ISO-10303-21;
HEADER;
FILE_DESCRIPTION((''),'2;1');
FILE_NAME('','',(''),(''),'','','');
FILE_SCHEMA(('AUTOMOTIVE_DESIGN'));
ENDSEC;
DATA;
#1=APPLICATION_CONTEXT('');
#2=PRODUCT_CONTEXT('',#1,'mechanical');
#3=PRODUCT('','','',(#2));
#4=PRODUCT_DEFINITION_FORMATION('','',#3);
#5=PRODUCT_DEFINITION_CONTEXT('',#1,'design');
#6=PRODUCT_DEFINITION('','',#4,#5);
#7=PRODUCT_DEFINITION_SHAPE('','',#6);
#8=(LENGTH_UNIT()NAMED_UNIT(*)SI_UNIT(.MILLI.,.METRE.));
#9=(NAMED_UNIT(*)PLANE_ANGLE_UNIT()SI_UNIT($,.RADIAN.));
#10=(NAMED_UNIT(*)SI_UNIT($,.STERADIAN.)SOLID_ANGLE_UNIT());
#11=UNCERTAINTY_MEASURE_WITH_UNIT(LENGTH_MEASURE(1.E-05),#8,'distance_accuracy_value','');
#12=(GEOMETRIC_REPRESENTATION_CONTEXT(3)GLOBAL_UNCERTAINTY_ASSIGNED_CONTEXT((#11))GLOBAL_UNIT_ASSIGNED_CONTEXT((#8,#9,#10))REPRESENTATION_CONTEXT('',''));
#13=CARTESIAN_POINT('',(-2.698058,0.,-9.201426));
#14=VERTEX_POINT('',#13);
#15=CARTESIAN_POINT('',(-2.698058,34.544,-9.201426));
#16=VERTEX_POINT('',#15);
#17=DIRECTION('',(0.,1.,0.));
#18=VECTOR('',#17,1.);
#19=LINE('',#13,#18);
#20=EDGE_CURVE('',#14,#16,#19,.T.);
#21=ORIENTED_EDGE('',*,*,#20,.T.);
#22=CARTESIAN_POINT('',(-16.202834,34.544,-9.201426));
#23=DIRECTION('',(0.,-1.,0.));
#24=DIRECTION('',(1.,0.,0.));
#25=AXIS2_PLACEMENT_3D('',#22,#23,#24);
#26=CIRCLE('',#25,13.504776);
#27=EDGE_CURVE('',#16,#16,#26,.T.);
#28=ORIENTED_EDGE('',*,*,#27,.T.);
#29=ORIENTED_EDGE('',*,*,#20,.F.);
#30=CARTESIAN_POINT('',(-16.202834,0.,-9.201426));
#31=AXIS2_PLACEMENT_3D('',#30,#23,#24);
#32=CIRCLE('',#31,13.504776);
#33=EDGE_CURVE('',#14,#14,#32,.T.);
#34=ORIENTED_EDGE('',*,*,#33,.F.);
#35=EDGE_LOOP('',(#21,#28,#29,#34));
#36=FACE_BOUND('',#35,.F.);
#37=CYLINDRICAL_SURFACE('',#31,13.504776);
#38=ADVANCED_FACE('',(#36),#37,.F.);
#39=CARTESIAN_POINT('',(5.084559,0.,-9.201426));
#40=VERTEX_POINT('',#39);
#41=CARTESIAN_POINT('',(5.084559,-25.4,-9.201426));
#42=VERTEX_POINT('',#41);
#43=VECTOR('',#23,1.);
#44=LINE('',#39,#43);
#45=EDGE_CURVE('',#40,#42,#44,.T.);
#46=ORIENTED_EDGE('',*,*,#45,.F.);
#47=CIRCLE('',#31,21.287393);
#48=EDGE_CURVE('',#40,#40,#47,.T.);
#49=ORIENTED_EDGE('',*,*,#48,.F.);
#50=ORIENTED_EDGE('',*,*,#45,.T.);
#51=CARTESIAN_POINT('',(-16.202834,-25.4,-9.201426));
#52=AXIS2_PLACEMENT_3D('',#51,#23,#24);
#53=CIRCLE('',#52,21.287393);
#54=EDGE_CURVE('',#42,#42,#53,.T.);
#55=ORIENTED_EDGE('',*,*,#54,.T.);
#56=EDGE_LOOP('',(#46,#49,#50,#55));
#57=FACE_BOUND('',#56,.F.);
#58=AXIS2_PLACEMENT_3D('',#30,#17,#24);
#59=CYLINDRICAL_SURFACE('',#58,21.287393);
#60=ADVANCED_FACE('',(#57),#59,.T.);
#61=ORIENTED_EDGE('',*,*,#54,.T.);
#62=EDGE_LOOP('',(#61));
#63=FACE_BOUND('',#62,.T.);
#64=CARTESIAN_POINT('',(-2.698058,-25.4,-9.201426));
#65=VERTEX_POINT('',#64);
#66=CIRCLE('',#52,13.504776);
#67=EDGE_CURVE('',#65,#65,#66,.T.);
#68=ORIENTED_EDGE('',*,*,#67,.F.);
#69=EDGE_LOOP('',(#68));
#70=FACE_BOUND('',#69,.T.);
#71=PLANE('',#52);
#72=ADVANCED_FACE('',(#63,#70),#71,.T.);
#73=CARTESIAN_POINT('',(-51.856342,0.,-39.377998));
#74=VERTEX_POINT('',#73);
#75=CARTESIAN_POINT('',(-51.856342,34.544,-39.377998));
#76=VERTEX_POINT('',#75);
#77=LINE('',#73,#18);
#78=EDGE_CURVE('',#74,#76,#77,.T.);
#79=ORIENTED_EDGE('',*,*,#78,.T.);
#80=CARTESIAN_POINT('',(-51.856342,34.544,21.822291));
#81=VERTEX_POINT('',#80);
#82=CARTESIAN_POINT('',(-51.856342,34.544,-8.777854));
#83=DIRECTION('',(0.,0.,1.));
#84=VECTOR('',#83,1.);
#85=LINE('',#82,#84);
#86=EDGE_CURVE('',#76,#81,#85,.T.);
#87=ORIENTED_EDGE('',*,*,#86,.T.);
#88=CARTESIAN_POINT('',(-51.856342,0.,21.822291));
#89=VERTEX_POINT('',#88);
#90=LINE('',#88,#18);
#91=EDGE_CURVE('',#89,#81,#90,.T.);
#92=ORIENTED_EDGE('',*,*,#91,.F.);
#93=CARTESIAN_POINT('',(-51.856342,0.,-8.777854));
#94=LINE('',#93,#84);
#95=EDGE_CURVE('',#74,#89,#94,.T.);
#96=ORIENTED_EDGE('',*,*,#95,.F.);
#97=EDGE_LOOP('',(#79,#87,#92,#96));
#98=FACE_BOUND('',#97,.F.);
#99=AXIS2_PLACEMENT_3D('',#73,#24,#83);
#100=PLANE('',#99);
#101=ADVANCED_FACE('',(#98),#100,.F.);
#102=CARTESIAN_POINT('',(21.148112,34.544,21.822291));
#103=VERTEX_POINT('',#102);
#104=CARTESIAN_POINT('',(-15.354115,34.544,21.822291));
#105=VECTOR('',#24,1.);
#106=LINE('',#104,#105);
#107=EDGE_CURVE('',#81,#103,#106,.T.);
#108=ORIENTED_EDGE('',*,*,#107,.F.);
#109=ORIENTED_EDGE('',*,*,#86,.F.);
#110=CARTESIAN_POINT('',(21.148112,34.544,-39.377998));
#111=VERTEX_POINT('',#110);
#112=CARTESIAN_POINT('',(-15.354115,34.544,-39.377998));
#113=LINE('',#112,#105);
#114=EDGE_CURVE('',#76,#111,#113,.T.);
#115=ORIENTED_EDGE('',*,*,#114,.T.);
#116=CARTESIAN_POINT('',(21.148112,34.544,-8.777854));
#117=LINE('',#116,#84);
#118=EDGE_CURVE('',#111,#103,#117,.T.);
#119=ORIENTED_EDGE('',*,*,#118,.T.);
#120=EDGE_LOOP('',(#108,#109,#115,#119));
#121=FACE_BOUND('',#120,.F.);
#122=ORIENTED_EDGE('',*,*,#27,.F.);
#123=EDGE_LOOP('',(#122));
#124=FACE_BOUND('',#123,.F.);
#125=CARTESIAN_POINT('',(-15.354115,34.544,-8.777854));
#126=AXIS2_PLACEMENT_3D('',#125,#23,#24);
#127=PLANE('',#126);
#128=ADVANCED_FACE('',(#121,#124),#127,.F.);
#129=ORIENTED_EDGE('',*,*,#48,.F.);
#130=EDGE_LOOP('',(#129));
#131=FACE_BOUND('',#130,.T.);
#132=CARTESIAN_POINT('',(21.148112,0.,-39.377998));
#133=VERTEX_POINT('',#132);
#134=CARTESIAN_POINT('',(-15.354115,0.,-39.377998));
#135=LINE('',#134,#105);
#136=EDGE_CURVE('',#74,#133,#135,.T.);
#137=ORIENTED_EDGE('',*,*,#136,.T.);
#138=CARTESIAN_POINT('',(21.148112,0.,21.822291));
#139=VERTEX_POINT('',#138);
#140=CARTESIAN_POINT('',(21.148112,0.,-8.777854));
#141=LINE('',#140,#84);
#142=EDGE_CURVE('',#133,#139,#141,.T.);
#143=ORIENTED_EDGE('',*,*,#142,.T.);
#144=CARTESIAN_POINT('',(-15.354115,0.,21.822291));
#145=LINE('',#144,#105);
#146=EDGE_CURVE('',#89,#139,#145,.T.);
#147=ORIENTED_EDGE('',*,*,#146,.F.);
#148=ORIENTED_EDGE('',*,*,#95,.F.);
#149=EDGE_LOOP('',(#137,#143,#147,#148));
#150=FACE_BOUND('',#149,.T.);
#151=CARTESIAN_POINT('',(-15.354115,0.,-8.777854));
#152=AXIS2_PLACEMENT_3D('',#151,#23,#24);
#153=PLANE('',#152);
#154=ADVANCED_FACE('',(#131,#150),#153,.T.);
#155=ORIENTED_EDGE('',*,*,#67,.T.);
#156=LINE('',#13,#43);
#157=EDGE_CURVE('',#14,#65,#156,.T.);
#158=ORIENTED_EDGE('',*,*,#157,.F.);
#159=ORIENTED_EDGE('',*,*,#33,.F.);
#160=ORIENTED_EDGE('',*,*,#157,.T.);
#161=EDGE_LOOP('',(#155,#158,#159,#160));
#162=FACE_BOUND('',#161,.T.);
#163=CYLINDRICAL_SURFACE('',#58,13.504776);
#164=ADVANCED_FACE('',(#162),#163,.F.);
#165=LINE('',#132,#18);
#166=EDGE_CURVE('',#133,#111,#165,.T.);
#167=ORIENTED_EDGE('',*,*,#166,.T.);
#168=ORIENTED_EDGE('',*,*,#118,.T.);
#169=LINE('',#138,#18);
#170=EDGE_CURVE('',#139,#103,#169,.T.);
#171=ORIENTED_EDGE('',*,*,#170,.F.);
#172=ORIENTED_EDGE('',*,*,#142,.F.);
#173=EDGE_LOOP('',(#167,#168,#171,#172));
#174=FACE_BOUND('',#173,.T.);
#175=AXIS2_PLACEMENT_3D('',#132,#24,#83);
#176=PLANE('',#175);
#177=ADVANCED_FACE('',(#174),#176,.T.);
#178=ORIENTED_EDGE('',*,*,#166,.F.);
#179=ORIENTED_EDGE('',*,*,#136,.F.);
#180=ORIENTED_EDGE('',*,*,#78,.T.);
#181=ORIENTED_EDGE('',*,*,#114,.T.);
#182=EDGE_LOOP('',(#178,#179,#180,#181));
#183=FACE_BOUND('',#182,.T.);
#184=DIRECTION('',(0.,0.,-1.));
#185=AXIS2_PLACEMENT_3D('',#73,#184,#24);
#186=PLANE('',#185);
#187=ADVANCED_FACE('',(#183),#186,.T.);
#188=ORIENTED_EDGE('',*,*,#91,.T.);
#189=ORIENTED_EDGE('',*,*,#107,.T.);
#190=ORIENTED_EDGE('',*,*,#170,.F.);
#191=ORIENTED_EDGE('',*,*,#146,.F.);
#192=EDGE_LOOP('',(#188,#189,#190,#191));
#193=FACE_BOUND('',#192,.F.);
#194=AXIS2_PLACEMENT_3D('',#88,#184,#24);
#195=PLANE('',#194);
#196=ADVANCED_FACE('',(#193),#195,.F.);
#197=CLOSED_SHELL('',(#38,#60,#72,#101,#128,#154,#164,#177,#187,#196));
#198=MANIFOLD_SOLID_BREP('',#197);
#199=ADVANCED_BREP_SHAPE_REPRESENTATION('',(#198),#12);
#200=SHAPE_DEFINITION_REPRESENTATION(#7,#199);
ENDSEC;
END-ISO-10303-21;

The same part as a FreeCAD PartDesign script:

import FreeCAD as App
import Part
import Sketcher

V = App.Vector

doc = App.newDocument("Part")
params = doc.addObject("Spreadsheet::Sheet", "Params")
for row, (alias, value) in enumerate([
    ("pad1_length", "1.36 in"),
    ("pocket1_length", "2.73 in"),
    ("pad2_length", "1 in"),
], start=1):
    params.set(f"A{row}", alias)
    params.set(f"B{row}", "=" + value)
    params.setAlias(f"B{row}", alias)

body = doc.addObject("PartDesign::Body", "Body")

sketch1 = body.newObject("Sketcher::SketchObject", "Sketch")
sketch1.AttachmentSupport = (doc.getObject("XZ_Plane"), [""])
sketch1.MapMode = "FlatFace"
sketch1.addGeometry([
    Part.LineSegment(V(-51.856342, 21.822291, 0), V(-51.856342, -39.377998, 0)),
    Part.LineSegment(V(-51.856342, -39.377998, 0), V(21.148112, -39.377998, 0)),
    Part.LineSegment(V(21.148112, -39.377998, 0), V(21.148112, 21.822291, 0)),
    Part.LineSegment(V(21.148112, 21.822291, 0), V(-51.856342, 21.822291, 0)),
], False)
sketch1.addConstraint([
    Sketcher.Constraint("Coincident", 0, 2, 1, 1),
    Sketcher.Constraint("Coincident", 1, 2, 2, 1),
    Sketcher.Constraint("Coincident", 2, 2, 3, 1),
    Sketcher.Constraint("Coincident", 3, 2, 0, 1),
    Sketcher.Constraint("Vertical", 0),
    Sketcher.Constraint("Horizontal", 1),
    Sketcher.Constraint("Vertical", 2),
    Sketcher.Constraint("Horizontal", 3),
    Sketcher.Constraint("DistanceY", 0, 2, 0, 1, 61.200289),
    Sketcher.Constraint("DistanceY", 0, 2, -1, 1, 39.377998),
    Sketcher.Constraint("DistanceX", 1, 1, 1, 2, 73.004455),
    Sketcher.Constraint("DistanceX", 0, 2, -1, 1, 51.856342),
])
pad1 = body.newObject("PartDesign::Pad", "Pad")
pad1.Profile = sketch1
pad1.setExpression("Length", "Params.pad1_length")
pad1.Reversed = True

sketch2 = body.newObject("Sketcher::SketchObject", "Sketch001")
sketch2.AttachmentSupport = (doc.getObject("XZ_Plane"), [""])
sketch2.MapMode = "FlatFace"
sketch2.addGeometry(Part.Circle(V(-16.202834, -9.201426, 0), V(0, 0, 1), 13.504776), False)
sketch2.addConstraint([
    Sketcher.Constraint("Diameter", 0, 27.009552),
    Sketcher.Constraint("DistanceX", 0, 3, -1, 1, 16.202834),
    Sketcher.Constraint("DistanceY", 0, 3, -1, 1, 9.201426),
])
pocket1 = body.newObject("PartDesign::Pocket", "Pocket")
pocket1.Profile = sketch2
pocket1.setExpression("Length", "Params.pocket1_length")

sketch3 = body.newObject("Sketcher::SketchObject", "Sketch002")
sketch3.AttachmentSupport = (doc.getObject("XZ_Plane"), [""])
sketch3.MapMode = "FlatFace"
sketch3.addGeometry([
    Part.Circle(V(-16.202834, -9.201426, 0), V(0, 0, 1), 21.287393),
    Part.Circle(V(-16.202834, -9.201426, 0), V(0, 0, 1), 13.504776),
], False)
sketch3.addConstraint([
    Sketcher.Constraint("Coincident", 1, 3, 0, 3),
    Sketcher.Constraint("Diameter", 1, 27.009552),
    Sketcher.Constraint("Diameter", 0, 42.574786),
    Sketcher.Constraint("DistanceX", 0, 3, -1, 1, 16.202834),
    Sketcher.Constraint("DistanceY", 0, 3, -1, 1, 9.201426),
])
pad2 = body.newObject("PartDesign::Pad", "Pad001")
pad2.Profile = sketch3
pad2.setExpression("Length", "Params.pad2_length")

doc.recompute()
